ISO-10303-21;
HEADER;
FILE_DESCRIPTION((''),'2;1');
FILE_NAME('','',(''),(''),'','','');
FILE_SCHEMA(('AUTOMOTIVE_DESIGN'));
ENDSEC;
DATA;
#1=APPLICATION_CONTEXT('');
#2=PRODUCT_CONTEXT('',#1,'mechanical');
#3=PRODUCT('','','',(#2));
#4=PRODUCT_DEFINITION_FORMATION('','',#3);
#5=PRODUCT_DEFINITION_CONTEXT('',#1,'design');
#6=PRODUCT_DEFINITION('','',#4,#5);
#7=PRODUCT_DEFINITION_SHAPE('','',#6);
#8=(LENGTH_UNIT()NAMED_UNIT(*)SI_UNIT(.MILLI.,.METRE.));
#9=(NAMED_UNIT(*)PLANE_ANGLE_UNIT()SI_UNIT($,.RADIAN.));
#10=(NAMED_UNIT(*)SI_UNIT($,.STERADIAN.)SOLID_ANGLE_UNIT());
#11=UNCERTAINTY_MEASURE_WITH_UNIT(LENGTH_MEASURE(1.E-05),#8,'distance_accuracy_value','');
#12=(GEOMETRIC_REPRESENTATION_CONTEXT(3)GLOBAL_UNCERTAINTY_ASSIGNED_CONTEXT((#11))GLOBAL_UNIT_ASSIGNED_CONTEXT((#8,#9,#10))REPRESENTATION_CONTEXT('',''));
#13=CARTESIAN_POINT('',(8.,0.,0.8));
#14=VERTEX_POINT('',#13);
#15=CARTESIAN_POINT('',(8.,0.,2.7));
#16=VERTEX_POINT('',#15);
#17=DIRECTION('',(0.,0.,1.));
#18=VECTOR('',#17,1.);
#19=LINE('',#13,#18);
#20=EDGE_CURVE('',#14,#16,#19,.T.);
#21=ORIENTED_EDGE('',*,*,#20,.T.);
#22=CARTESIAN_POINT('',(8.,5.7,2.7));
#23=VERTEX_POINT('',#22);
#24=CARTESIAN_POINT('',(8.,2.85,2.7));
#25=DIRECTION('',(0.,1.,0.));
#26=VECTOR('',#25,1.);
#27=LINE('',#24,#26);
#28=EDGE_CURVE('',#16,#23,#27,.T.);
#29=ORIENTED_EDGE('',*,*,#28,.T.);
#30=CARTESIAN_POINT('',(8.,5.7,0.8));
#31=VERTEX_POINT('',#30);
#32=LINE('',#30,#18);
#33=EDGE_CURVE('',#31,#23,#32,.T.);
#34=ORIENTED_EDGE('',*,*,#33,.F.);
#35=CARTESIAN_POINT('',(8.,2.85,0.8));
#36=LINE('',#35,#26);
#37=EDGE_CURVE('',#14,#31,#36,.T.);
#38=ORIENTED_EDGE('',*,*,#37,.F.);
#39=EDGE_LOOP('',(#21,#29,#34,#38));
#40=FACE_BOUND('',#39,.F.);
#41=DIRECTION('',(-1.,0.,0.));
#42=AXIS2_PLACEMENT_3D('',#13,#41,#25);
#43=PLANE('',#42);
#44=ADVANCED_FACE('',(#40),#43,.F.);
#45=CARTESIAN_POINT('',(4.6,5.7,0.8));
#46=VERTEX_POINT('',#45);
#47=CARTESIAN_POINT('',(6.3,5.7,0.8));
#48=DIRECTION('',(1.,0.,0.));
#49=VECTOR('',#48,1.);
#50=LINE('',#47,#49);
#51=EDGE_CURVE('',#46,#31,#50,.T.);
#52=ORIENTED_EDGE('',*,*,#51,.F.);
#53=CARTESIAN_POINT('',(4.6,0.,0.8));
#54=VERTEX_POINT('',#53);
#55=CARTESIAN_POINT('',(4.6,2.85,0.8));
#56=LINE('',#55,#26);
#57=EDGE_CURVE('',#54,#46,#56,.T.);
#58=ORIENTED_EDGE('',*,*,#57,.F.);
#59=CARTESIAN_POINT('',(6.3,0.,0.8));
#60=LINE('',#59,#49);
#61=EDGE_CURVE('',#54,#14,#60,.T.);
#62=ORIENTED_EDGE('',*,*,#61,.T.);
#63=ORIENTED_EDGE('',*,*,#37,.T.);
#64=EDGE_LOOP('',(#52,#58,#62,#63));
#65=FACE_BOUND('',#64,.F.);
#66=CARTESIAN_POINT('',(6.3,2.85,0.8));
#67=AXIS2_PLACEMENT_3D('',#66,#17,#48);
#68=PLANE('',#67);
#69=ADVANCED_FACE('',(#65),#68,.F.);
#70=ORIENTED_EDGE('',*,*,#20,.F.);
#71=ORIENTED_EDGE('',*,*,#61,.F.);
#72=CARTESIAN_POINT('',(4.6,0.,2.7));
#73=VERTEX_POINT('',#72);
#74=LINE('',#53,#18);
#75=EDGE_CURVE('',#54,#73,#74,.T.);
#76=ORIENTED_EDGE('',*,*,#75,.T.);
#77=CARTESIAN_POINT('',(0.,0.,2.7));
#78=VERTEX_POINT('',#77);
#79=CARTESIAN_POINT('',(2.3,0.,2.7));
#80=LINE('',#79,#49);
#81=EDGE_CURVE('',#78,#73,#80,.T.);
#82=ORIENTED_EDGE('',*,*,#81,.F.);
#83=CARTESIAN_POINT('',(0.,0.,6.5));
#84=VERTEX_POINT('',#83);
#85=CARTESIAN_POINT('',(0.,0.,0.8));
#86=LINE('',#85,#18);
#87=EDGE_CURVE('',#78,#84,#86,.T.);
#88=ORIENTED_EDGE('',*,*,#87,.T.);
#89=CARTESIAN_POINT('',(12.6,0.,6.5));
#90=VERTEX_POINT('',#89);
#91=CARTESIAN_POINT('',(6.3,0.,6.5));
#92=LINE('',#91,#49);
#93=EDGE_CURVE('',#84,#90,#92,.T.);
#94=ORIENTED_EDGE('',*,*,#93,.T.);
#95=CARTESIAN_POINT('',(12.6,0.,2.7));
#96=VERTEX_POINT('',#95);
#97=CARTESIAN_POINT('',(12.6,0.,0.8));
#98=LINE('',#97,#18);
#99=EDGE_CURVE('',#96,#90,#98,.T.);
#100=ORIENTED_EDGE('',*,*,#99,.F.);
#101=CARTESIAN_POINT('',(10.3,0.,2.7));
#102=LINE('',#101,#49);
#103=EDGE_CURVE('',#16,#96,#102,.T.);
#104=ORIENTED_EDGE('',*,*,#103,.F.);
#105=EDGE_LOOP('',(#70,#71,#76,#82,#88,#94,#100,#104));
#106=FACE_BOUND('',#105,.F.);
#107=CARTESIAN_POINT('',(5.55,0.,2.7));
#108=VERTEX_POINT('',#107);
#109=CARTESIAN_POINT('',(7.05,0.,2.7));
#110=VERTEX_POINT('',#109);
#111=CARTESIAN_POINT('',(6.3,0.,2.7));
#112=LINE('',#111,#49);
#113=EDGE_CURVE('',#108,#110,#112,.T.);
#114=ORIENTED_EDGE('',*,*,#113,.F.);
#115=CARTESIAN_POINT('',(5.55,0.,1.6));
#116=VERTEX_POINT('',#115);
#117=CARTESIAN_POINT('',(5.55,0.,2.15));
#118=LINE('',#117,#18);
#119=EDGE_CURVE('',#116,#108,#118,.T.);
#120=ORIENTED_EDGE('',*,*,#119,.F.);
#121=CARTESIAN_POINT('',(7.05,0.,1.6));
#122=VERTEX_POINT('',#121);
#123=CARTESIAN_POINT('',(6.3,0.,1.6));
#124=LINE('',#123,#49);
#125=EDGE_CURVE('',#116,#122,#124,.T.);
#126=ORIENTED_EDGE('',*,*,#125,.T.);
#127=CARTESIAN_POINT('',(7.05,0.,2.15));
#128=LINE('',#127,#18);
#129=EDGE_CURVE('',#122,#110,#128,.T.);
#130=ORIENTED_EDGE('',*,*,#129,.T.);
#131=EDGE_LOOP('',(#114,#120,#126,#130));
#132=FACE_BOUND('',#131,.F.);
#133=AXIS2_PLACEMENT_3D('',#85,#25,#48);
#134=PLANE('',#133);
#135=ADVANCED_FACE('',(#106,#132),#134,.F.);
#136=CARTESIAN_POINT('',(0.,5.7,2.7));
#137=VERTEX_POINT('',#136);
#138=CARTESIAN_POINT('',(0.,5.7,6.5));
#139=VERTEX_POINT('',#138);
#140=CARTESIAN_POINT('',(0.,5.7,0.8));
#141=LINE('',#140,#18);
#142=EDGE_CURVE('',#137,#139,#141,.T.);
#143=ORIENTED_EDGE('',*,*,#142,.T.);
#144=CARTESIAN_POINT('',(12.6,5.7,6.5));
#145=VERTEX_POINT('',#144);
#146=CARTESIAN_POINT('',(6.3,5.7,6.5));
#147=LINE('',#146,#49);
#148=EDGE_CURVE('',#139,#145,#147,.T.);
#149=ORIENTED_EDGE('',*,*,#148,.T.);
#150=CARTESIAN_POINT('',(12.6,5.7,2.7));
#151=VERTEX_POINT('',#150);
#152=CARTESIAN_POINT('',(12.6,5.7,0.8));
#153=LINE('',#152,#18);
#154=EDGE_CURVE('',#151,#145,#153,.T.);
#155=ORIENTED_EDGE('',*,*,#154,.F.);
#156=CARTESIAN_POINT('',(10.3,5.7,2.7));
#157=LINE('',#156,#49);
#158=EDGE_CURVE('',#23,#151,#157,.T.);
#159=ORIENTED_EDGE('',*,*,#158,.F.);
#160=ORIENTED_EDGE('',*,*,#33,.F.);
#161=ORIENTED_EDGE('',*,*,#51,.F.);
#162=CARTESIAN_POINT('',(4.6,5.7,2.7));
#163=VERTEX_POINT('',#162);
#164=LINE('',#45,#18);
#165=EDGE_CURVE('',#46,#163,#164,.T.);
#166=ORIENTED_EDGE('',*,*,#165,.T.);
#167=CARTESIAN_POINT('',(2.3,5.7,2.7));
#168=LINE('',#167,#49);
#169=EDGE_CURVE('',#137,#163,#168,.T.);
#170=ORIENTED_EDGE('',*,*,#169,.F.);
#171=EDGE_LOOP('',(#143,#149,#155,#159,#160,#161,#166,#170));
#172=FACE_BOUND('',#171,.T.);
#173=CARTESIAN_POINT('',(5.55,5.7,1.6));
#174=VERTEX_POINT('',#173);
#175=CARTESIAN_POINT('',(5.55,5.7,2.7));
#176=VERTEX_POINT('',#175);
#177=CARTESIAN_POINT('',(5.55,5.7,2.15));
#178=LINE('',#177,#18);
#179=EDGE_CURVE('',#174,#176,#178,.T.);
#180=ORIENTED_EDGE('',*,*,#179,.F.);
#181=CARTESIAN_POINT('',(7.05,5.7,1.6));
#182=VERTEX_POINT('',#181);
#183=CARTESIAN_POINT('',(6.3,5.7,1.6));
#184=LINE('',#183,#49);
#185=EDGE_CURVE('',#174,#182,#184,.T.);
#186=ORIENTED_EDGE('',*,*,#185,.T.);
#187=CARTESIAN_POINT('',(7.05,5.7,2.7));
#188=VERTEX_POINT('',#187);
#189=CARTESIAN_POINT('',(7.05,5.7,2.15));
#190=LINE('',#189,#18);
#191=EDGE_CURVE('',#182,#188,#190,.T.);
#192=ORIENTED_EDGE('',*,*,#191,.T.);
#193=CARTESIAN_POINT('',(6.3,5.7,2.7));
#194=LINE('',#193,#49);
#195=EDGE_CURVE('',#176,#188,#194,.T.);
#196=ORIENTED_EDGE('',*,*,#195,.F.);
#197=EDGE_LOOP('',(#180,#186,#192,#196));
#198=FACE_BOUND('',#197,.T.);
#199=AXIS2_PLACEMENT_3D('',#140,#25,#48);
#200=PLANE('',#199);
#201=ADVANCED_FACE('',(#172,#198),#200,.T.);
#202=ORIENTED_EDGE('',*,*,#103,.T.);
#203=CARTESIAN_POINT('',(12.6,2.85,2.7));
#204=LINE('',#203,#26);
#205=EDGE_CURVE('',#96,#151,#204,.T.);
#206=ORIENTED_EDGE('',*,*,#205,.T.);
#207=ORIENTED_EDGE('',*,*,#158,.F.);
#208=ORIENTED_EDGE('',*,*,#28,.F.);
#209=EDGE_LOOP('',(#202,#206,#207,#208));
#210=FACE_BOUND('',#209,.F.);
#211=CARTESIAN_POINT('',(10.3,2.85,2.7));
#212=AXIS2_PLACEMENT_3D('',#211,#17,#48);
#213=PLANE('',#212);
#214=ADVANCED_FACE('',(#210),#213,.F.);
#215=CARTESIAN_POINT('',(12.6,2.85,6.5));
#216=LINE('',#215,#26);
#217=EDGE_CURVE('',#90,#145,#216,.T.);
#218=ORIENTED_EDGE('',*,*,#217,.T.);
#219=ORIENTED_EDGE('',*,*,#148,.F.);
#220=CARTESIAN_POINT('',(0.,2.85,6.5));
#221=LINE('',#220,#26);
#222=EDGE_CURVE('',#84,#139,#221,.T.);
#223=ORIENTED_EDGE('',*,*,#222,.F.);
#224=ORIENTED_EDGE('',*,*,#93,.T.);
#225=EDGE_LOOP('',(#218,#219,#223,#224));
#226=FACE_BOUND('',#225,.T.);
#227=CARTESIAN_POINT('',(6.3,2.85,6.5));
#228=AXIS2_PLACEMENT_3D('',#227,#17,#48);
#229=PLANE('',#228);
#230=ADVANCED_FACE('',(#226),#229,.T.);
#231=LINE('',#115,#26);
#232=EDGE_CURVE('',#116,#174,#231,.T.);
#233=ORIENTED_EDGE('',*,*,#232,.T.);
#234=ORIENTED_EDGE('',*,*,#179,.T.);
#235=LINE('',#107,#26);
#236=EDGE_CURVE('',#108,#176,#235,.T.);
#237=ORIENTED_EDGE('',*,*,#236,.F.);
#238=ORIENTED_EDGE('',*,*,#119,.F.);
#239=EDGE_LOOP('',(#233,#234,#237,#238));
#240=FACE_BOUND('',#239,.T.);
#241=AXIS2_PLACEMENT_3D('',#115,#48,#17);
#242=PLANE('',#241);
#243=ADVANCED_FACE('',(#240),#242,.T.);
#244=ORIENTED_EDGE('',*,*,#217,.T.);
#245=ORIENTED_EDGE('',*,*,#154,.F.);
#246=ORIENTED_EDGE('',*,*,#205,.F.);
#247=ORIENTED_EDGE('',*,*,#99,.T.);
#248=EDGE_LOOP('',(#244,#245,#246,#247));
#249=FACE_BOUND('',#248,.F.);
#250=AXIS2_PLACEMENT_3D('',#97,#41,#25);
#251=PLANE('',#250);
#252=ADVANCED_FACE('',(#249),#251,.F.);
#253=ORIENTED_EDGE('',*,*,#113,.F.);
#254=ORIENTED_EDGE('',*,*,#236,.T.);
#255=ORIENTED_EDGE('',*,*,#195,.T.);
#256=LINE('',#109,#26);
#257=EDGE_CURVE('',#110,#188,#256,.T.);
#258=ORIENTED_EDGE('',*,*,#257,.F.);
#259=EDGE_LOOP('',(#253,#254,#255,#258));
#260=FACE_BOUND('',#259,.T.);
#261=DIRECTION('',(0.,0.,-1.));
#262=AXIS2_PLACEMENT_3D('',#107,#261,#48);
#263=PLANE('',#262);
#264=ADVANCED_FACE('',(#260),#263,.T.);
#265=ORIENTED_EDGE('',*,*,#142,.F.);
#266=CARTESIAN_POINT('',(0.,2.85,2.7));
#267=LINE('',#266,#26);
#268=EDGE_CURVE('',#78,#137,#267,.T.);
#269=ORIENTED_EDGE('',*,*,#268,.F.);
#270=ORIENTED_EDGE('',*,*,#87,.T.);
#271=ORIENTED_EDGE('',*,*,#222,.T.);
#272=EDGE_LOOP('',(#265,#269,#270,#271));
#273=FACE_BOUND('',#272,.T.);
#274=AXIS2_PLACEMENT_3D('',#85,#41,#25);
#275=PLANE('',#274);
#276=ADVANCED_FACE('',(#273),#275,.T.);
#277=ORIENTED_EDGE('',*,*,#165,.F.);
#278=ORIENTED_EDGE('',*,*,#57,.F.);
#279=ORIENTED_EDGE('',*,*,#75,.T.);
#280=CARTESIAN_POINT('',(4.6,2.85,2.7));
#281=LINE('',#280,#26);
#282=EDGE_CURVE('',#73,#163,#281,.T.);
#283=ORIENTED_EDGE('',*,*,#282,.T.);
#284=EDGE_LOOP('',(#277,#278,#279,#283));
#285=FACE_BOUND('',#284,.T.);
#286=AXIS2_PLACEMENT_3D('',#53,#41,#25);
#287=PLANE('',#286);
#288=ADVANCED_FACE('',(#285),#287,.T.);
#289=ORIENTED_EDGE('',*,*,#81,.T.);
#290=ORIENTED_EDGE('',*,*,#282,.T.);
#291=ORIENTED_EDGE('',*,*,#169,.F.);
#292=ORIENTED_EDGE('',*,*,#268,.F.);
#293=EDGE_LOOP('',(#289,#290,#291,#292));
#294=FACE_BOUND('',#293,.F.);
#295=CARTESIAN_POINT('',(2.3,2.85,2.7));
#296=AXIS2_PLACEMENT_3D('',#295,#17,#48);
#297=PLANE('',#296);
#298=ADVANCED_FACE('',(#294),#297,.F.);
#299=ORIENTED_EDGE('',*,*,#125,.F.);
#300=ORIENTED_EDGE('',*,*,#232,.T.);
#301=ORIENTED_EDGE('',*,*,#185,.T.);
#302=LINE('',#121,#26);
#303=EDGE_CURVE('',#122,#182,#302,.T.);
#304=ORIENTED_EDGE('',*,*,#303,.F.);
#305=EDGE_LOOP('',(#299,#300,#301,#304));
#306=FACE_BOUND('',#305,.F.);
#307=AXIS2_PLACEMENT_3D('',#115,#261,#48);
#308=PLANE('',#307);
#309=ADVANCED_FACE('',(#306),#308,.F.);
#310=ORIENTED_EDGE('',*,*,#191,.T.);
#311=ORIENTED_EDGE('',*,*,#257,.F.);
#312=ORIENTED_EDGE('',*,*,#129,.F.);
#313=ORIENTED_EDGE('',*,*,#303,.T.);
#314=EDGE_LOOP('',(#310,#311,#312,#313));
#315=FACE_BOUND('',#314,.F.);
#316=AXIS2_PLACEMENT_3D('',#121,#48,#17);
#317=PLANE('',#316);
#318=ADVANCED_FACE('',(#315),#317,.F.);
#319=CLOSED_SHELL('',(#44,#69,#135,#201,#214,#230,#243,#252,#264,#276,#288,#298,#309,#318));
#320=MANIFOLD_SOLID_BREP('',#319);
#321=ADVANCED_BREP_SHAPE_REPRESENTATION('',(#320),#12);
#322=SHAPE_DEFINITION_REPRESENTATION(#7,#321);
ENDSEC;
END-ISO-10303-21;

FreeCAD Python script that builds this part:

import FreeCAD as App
import Part
import Sketcher

V = App.Vector
Q = App.Units.Quantity

doc = App.newDocument("Part")
params = doc.addObject("Spreadsheet::Sheet", "Params")
for row, (alias, value) in enumerate([
    ("sketch1_width", "1.5 mm"),
    ("sketch1_height", "1.1 mm"),
    ("pad1_length", "5.7 mm"),
    ("sketch2_width", "4.6 mm"),
    ("sketch2_height", "5.7 mm"),
    ("pad2_length", "1.9 mm"),
    ("sketch3_width", "4.6 mm"),
    ("sketch3_height", "5.7 mm"),
    ("pad3_length", "1.9 mm"),
    ("sketch4_width", "12.6 mm"),
    ("sketch4_height", "5.7 mm"),
    ("pad4_length", "5.7 mm"),
], start=1):
    params.set(f"A{row}", alias)
    params.set(f"B{row}", "=" + value)
    params.setAlias(f"B{row}", alias)

body = doc.addObject("PartDesign::Body", "Body")

# Sketch on XZ plane
sketch1 = body.newObject("Sketcher::SketchObject", "Sketch")
sketch1.AttachmentSupport = (doc.getObject("XZ_Plane"), [""])
sketch1.MapMode = "FlatFace"
sketch1.addGeometry(Part.LineSegment(V(5.55, 2.7, 0), V(5.55, 1.6, 0)), False)
sketch1.addGeometry(Part.LineSegment(V(5.55, 1.6, 0), V(7.05, 1.6, 0)), False)
sketch1.addGeometry(Part.LineSegment(V(7.05, 1.6, 0), V(7.05, 2.7, 0)), False)
sketch1.addGeometry(Part.LineSegment(V(7.05, 2.7, 0), V(5.55, 2.7, 0)), False)
sketch1.addConstraint(Sketcher.Constraint("Coincident", 0, 2, 1, 1))
sketch1.addConstraint(Sketcher.Constraint("Coincident", 1, 2, 2, 1))
sketch1.addConstraint(Sketcher.Constraint("Coincident", 2, 2, 3, 1))
sketch1.addConstraint(Sketcher.Constraint("Coincident", 3, 2, 0, 1))
sketch1.addConstraint(Sketcher.Constraint("Vertical", 0))
sketch1.addConstraint(Sketcher.Constraint("Horizontal", 1))
sketch1.addConstraint(Sketcher.Constraint("Vertical", 2))
sketch1.addConstraint(Sketcher.Constraint("Horizontal", 3))
sketch1.addConstraint(Sketcher.Constraint("DistanceX", 1, 1, 1, 2, Q("1.5 mm")))
sketch1.addConstraint(Sketcher.Constraint("DistanceY", 0, 2, 0, 1, Q("1.1 mm")))
sketch1.addConstraint(Sketcher.Constraint("DistanceY", -1, 1, 0, 2, Q("1.6 mm")))
sketch1.addConstraint(Sketcher.Constraint("DistanceX", -1, 1, 0, 2, Q("5.55 mm")))
sketch1.setExpression("Constraints[8]", "Params.sketch1_width")
sketch1.setExpression("Constraints[9]", "Params.sketch1_height")
pad1 = body.newObject("PartDesign::Pad", "Pad")
pad1.Profile = sketch1
pad1.setExpression("Length", "Params.pad1_length")
pad1.Reversed = True
body2 = doc.addObject("PartDesign::Body", "Body001")

# Sketch on XY plane
sketch2 = body2.newObject("Sketcher::SketchObject", "Sketch001")
sketch2.AttachmentSupport = (doc.getObject("XY_Plane001"), [""])
sketch2.MapMode = "FlatFace"
sketch2.AttachmentOffset = App.Placement(V(0, 0, 0.8), App.Rotation())
sketch2.addGeometry(Part.LineSegment(V(8, 5.7, 0), V(8, 0, 0)), False)
sketch2.addGeometry(Part.LineSegment(V(8, 0, 0), V(12.6, 0, 0)), False)
sketch2.addGeometry(Part.LineSegment(V(12.6, 0, 0), V(12.6, 5.7, 0)), False)
sketch2.addGeometry(Part.LineSegment(V(12.6, 5.7, 0), V(8, 5.7, 0)), False)
sketch2.addConstraint(Sketcher.Constraint("Coincident", 0, 2, 1, 1))
sketch2.addConstraint(Sketcher.Constraint("Coincident", 1, 2, 2, 1))
sketch2.addConstraint(Sketcher.Constraint("Coincident", 2, 2, 3, 1))
sketch2.addConstraint(Sketcher.Constraint("Coincident", 3, 2, 0, 1))
sketch2.addConstraint(Sketcher.Constraint("Vertical", 0))
sketch2.addConstraint(Sketcher.Constraint("Horizontal", 1))
sketch2.addConstraint(Sketcher.Constraint("Vertical", 2))
sketch2.addConstraint(Sketcher.Constraint("Horizontal", 3))
sketch2.addConstraint(Sketcher.Constraint("PointOnObject", 0, 2, -1))
sketch2.addConstraint(Sketcher.Constraint("DistanceX", 1, 1, 1, 2, Q("4.6 mm")))
sketch2.addConstraint(Sketcher.Constraint("DistanceY", 0, 2, 0, 1, Q("5.7 mm")))
sketch2.addConstraint(Sketcher.Constraint("DistanceX", -1, 1, 0, 2, Q("8 mm")))
sketch2.setExpression("Constraints[9]", "Params.sketch2_width")
sketch2.setExpression("Constraints[10]", "Params.sketch2_height")
pad2 = body2.newObject("PartDesign::Pad", "Pad001")
pad2.Profile = sketch2
pad2.setExpression("Length", "Params.pad2_length")
body3 = doc.addObject("PartDesign::Body", "Body002")

# Sketch on XY plane
sketch3 = body3.newObject("Sketcher::SketchObject", "Sketch002")
sketch3.AttachmentSupport = (doc.getObject("XY_Plane002"), [""])
sketch3.MapMode = "FlatFace"
sketch3.AttachmentOffset = App.Placement(V(0, 0, 0.8), App.Rotation())
sketch3.addGeometry(Part.LineSegment(V(0, 5.7, 0), V(0, 0, 0)), False)
sketch3.addGeometry(Part.LineSegment(V(0, 0, 0), V(4.6, 0, 0)), False)
sketch3.addGeometry(Part.LineSegment(V(4.6, 0, 0), V(4.6, 5.7, 0)), False)
sketch3.addGeometry(Part.LineSegment(V(4.6, 5.7, 0), V(0, 5.7, 0)), False)
sketch3.addConstraint(Sketcher.Constraint("Coincident", 0, 2, 1, 1))
sketch3.addConstraint(Sketcher.Constraint("Coincident", 1, 2, 2, 1))
sketch3.addConstraint(Sketcher.Constraint("Coincident", 2, 2, 3, 1))
sketch3.addConstraint(Sketcher.Constraint("Coincident", 3, 2, 0, 1))
sketch3.addConstraint(Sketcher.Constraint("Vertical", 0))
sketch3.addConstraint(Sketcher.Constraint("Horizontal", 1))
sketch3.addConstraint(Sketcher.Constraint("Vertical", 2))
sketch3.addConstraint(Sketcher.Constraint("Horizontal", 3))
sketch3.addConstraint(Sketcher.Constraint("Coincident", 0, 2, -1, 1))
sketch3.addConstraint(Sketcher.Constraint("DistanceX", 1, 1, 1, 2, Q("4.6 mm")))
sketch3.addConstraint(Sketcher.Constraint("DistanceY", 0, 2, 0, 1, Q("5.7 mm")))
sketch3.setExpression("Constraints[9]", "Params.sketch3_width")
sketch3.setExpression("Constraints[10]", "Params.sketch3_height")
pad3 = body3.newObject("PartDesign::Pad", "Pad002")
pad3.Profile = sketch3
pad3.setExpression("Length", "Params.pad3_length")
body4 = doc.addObject("PartDesign::Body", "Body003")

# Sketch on XY plane
sketch4 = body4.newObject("Sketcher::SketchObject", "Sketch003")
sketch4.AttachmentSupport = (doc.getObject("XY_Plane003"), [""])
sketch4.MapMode = "FlatFace"
sketch4.AttachmentOffset = App.Placement(V(0, 0, 0.8), App.Rotation())
sketch4.addGeometry(Part.LineSegment(V(0, 5.7, 0), V(0, 0, 0)), False)
sketch4.addGeometry(Part.LineSegment(V(0, 0, 0), V(12.6, 0, 0)), False)
sketch4.addGeometry(Part.LineSegment(V(12.6, 0, 0), V(12.6, 5.7, 0)), False)
sketch4.addGeometry(Part.LineSegment(V(12.6, 5.7, 0), V(0, 5.7, 0)), False)
sketch4.addConstraint(Sketcher.Constraint("Coincident", 0, 2, 1, 1))
sketch4.addConstraint(Sketcher.Constraint("Coincident", 1, 2, 2, 1))
sketch4.addConstraint(Sketcher.Constraint("Coincident", 2, 2, 3, 1))
sketch4.addConstraint(Sketcher.Constraint("Coincident", 3, 2, 0, 1))
sketch4.addConstraint(Sketcher.Constraint("Vertical", 0))
sketch4.addConstraint(Sketcher.Constraint("Horizontal", 1))
sketch4.addConstraint(Sketcher.Constraint("Vertical", 2))
sketch4.addConstraint(Sketcher.Constraint("Horizontal", 3))
sketch4.addConstraint(Sketcher.Constraint("Coincident", 0, 2, -1, 1))
sketch4.addConstraint(Sketcher.Constraint("DistanceX", 1, 1, 1, 2, Q("12.6 mm")))
sketch4.addConstraint(Sketcher.Constraint("DistanceY", 0, 2, 0, 1, Q("5.7 mm")))
sketch4.setExpression("Constraints[9]", "Params.sketch4_width")
sketch4.setExpression("Constraints[10]", "Params.sketch4_height")
pad4 = body4.newObject("PartDesign::Pad", "Pad003")
pad4.Profile = sketch4
pad4.setExpression("Length", "Params.pad4_length")
doc.recompute()

boolean = body4.newObject("PartDesign::Boolean", "Boolean")
boolean.Type = "Cut"
boolean.addObjects([body3])
doc.recompute()

boolean2 = body4.newObject("PartDesign::Boolean", "Boolean001")
boolean2.Type = "Cut"
boolean2.addObjects([body2])
doc.recompute()

boolean3 = body4.newObject("PartDesign::Boolean", "Boolean002")
boolean3.Type = "Cut"
boolean3.addObjects([body])

doc.recompute()
